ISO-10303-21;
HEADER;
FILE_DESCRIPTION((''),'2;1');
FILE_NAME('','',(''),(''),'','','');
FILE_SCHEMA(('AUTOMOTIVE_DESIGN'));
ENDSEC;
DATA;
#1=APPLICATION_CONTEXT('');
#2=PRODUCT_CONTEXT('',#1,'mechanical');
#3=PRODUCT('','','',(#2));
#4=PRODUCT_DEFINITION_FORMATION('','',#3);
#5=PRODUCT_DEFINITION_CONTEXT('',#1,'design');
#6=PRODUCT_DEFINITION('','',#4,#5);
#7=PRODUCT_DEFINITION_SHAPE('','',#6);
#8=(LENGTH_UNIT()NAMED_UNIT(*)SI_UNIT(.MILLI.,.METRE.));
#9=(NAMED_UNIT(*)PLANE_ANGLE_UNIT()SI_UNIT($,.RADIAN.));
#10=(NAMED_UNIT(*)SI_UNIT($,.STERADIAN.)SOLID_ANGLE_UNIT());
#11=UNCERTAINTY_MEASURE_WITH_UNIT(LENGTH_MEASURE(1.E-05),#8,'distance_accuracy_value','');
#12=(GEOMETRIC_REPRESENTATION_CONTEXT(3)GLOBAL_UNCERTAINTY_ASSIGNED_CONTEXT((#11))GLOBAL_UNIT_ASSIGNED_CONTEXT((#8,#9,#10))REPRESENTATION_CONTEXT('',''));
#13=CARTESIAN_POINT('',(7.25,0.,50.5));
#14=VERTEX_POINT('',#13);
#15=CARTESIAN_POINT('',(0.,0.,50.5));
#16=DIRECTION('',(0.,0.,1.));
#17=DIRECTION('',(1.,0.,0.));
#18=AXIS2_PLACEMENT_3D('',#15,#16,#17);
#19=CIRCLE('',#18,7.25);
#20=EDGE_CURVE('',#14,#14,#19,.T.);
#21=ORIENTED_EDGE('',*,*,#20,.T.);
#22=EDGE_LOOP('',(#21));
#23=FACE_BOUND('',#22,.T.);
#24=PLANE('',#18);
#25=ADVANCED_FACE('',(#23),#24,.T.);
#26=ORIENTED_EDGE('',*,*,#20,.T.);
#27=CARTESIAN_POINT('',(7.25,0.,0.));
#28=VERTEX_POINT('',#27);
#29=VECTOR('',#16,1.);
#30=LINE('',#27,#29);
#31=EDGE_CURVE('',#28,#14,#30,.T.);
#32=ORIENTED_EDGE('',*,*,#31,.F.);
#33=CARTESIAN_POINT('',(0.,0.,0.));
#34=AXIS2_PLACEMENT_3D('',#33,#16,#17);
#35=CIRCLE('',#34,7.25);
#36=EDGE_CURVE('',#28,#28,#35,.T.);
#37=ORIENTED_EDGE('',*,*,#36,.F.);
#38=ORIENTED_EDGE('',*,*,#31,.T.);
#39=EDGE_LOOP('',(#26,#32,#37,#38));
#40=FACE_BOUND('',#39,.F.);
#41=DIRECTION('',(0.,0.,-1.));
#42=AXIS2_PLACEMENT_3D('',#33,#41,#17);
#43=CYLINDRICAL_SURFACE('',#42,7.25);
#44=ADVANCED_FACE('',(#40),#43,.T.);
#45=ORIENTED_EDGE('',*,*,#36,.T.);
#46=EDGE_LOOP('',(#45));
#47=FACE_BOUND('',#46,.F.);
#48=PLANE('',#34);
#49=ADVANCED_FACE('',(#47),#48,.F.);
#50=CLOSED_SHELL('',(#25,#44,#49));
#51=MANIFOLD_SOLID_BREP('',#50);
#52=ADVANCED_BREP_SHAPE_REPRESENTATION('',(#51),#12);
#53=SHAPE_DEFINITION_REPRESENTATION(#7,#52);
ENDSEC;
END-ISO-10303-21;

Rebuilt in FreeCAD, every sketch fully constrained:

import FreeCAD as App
import Part
import Sketcher

doc = App.newDocument("Part")
body = doc.addObject("PartDesign::Body", "Body")

# Sketch on XY plane
sketch1 = doc.addObject("Sketcher::SketchObject", "Sketch")
body.addObject(sketch1)
sketch1.AttachmentSupport = (doc.XY_Plane, [""])
sketch1.MapMode = "FlatFace"
sketch1.addGeometry(Part.Circle(App.Vector(0, 0, 0), App.Vector(0, 0, 1), 7.25), False)
sketch1.addConstraint([
    Sketcher.Constraint("Coincident", 0, 3, -1, 1),
    Sketcher.Constraint("Diameter", 0, 14.5),
])
pad1 = doc.addObject("PartDesign::Pad", "Pad")
body.addObject(pad1)
pad1.Profile = sketch1
pad1.Length = 50.5

doc.recompute()
